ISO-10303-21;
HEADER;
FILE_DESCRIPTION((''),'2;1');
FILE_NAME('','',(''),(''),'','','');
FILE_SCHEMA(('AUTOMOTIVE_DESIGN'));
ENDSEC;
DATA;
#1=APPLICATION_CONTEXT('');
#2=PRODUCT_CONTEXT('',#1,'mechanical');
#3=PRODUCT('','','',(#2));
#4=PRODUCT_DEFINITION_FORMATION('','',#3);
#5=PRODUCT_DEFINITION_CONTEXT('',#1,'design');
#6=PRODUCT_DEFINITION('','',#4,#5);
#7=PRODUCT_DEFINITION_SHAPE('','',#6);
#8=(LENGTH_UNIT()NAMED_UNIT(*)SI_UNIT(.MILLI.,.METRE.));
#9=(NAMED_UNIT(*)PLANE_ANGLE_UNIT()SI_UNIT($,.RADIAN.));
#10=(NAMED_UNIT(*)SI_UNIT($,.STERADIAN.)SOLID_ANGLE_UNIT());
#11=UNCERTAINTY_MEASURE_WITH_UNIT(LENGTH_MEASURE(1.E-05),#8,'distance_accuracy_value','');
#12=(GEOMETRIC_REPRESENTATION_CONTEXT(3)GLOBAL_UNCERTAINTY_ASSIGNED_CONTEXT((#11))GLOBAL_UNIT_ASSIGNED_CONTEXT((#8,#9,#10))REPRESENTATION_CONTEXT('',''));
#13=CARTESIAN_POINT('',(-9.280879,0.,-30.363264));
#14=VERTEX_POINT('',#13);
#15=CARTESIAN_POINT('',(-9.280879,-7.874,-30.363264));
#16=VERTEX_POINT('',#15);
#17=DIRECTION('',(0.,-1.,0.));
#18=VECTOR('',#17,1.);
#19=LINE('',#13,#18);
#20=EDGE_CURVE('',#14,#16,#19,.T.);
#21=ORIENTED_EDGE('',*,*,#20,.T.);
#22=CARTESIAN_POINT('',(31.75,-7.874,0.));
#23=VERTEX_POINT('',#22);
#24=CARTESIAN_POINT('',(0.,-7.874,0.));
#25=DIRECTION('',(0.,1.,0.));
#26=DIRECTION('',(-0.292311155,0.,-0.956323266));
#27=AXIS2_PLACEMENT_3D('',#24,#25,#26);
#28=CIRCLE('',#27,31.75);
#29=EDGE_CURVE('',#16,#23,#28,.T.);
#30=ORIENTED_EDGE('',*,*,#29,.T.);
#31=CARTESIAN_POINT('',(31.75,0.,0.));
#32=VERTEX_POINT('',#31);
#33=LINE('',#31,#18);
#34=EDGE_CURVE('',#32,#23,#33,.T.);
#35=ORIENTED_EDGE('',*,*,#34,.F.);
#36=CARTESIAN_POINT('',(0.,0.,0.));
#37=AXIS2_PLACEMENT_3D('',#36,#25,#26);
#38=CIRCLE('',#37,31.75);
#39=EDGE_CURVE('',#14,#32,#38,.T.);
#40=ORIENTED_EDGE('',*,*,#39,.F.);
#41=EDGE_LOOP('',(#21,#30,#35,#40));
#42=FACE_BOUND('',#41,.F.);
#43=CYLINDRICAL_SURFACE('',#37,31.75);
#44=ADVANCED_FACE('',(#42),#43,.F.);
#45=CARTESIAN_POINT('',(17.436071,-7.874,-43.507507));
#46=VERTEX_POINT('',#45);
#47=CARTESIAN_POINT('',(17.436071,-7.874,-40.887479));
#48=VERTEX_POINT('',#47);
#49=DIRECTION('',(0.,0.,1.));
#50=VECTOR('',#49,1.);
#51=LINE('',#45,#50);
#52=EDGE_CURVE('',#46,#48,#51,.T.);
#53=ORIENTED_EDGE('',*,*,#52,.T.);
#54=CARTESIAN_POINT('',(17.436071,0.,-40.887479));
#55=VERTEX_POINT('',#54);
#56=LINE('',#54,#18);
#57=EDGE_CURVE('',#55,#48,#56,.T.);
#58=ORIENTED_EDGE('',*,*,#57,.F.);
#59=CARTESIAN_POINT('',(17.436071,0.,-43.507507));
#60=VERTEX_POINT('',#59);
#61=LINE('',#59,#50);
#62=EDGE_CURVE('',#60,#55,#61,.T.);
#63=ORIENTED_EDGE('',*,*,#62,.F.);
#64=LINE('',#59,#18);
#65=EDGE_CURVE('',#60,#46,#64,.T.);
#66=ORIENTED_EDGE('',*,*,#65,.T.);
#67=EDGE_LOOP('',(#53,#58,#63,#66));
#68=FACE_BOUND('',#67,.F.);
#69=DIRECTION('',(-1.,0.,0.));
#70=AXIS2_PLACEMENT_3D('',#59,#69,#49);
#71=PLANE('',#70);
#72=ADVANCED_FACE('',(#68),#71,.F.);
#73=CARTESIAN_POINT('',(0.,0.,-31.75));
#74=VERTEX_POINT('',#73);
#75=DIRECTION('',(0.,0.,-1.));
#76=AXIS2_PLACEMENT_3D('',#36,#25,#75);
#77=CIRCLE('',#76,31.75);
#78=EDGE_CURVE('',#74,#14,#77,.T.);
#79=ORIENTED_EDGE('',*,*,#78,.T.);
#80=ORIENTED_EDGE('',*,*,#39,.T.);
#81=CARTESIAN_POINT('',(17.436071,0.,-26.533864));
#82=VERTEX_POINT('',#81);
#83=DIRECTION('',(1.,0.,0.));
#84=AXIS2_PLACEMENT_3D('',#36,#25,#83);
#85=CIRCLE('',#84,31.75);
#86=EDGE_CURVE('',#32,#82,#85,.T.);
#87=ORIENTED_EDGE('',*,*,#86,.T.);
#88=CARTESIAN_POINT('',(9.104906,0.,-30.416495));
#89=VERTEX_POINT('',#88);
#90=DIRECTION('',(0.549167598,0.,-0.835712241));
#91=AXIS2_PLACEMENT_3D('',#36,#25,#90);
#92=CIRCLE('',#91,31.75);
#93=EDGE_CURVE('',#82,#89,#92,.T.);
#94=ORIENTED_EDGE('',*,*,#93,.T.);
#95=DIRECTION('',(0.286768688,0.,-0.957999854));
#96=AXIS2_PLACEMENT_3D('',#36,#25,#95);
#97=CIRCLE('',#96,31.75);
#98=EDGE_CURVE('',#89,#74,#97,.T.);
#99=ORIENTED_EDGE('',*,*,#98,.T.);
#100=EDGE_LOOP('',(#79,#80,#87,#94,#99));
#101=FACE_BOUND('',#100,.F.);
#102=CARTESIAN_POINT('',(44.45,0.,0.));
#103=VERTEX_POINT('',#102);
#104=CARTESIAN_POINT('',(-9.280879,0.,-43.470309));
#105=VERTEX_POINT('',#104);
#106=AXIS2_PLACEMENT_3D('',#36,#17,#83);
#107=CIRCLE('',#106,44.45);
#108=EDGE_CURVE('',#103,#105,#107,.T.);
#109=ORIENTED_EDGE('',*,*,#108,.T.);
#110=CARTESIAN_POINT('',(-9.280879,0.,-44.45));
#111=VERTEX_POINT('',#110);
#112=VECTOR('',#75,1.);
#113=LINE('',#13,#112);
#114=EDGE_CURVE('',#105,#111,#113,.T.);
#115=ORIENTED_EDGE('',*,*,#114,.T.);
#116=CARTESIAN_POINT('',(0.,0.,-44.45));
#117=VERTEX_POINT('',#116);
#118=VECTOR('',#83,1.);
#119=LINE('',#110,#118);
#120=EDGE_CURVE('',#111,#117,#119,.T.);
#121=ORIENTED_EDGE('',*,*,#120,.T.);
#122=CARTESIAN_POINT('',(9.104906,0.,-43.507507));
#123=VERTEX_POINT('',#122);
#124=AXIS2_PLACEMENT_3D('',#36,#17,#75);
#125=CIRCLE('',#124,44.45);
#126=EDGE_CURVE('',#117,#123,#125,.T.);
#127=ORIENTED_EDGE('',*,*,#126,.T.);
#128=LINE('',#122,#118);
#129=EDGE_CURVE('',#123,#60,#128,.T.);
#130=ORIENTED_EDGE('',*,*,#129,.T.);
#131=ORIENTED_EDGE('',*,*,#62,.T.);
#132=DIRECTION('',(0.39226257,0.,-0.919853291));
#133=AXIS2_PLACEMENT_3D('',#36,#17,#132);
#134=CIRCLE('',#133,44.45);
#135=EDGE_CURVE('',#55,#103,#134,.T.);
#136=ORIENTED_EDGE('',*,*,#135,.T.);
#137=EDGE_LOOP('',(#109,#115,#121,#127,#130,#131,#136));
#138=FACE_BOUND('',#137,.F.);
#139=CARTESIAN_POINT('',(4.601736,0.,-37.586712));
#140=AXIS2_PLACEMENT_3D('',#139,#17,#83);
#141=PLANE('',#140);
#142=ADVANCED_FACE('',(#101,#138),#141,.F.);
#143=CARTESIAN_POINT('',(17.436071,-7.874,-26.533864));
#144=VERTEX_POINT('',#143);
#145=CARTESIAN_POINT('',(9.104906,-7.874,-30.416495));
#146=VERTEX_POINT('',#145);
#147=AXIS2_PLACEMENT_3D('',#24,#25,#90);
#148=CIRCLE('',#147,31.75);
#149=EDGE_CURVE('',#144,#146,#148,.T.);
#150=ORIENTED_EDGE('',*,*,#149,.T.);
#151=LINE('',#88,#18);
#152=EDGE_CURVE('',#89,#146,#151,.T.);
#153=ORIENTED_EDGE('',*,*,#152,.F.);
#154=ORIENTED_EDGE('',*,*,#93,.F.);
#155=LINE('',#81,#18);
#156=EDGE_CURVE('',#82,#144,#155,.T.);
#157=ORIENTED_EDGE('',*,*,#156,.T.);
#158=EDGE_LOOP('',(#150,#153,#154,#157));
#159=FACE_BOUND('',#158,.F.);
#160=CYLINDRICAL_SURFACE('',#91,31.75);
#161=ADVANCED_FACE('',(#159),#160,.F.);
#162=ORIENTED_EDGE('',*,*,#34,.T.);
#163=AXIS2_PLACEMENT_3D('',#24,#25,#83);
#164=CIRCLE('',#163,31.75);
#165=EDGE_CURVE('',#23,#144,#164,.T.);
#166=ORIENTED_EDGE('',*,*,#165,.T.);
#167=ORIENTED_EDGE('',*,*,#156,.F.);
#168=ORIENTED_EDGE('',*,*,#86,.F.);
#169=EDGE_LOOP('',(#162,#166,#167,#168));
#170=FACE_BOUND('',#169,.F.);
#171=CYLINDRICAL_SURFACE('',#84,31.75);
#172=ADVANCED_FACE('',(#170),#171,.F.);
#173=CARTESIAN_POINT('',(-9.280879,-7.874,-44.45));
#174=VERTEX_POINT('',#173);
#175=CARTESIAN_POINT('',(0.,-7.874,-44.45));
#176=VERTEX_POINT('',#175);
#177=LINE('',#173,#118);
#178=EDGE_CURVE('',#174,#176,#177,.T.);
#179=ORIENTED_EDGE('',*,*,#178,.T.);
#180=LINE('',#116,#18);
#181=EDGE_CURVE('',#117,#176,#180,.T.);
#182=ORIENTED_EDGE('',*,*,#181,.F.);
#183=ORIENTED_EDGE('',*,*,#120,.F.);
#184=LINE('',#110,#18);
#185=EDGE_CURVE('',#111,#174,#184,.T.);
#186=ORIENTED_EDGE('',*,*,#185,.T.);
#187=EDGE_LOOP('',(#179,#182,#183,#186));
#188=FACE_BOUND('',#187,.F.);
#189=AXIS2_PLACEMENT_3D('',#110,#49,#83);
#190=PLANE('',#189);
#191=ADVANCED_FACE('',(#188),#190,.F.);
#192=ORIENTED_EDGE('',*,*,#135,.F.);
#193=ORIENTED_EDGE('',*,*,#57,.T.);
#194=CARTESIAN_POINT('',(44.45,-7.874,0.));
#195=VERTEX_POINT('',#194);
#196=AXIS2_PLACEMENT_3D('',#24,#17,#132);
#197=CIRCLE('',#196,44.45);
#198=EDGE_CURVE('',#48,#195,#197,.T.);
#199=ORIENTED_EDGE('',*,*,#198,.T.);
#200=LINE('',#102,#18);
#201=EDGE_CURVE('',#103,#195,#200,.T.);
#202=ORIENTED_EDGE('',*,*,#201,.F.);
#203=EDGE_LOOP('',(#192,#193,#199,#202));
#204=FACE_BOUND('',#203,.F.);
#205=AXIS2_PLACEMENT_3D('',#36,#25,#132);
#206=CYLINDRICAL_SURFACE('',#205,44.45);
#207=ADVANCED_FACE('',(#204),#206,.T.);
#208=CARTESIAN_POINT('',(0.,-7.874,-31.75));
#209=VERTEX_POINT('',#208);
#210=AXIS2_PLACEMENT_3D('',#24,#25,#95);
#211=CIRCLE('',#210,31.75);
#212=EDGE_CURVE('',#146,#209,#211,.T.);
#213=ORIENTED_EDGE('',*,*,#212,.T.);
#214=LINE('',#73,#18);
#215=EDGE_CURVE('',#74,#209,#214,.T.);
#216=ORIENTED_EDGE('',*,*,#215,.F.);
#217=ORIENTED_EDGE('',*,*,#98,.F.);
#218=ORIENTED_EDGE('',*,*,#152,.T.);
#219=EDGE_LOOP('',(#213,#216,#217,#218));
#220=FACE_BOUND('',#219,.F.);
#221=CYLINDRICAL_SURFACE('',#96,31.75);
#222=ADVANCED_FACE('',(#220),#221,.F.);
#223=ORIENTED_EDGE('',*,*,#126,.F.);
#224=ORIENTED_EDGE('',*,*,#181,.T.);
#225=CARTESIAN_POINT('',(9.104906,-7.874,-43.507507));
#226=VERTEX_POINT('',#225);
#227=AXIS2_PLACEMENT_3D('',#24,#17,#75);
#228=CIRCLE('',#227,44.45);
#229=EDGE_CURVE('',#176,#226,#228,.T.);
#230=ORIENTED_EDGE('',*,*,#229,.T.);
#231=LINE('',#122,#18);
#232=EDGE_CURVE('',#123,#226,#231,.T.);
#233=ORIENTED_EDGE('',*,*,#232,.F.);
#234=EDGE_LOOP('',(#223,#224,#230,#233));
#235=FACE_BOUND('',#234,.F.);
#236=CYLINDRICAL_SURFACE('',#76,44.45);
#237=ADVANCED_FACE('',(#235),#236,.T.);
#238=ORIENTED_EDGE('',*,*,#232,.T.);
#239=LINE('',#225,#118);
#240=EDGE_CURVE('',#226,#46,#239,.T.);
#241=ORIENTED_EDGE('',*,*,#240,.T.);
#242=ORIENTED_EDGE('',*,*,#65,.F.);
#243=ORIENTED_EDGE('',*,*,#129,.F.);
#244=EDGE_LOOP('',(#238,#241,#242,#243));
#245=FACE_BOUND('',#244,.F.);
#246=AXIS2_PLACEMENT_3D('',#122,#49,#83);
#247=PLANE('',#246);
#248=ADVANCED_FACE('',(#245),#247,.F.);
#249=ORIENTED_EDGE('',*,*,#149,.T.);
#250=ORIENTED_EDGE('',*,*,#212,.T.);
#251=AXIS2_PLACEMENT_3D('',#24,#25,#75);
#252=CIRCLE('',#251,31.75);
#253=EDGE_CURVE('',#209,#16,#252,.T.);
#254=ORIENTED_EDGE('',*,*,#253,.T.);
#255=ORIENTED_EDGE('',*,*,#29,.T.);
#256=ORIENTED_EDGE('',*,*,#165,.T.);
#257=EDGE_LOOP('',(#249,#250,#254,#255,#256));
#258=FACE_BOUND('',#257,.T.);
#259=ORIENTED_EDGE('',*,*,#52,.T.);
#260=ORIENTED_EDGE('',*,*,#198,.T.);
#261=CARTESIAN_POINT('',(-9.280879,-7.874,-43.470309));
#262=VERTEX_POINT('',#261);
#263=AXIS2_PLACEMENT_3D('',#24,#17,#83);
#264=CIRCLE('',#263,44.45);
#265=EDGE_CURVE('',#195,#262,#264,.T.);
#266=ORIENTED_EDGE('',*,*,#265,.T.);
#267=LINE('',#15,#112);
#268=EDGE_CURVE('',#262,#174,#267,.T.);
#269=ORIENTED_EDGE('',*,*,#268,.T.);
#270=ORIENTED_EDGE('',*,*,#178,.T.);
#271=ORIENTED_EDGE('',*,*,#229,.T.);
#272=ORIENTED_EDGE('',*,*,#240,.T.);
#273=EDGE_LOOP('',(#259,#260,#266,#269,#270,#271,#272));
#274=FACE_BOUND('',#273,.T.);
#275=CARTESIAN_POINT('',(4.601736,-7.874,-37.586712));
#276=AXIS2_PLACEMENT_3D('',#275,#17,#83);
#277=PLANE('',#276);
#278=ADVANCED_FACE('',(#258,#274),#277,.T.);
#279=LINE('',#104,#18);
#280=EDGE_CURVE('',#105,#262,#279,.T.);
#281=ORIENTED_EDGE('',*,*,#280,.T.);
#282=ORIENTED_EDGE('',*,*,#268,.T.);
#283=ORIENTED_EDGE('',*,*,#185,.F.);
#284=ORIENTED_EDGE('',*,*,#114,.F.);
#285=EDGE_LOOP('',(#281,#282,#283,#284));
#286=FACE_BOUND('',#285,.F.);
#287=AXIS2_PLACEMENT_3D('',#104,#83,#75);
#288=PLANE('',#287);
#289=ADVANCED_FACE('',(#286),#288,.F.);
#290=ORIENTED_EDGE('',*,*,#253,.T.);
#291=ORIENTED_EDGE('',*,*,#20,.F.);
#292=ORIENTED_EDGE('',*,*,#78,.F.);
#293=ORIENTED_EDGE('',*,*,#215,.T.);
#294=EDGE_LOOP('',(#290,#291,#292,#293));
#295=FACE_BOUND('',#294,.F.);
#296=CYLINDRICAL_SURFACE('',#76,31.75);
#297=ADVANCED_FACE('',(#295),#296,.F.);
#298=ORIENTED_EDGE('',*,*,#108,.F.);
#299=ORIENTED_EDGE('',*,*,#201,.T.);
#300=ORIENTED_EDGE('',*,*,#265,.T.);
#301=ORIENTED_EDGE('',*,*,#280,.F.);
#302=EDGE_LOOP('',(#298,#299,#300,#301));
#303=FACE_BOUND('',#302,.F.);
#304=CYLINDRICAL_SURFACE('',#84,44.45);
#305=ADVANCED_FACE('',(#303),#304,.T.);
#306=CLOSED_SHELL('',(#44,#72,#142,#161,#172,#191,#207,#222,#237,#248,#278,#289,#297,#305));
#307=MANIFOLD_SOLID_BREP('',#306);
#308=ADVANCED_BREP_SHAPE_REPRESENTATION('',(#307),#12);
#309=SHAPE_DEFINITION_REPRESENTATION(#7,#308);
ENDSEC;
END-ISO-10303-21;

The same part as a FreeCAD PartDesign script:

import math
import FreeCAD as App
import Part
import Sketcher
from FreeCAD import Vector
Q = App.Units.Quantity

doc = App.newDocument("Part")
body = doc.addObject("PartDesign::Body", "Body")

sketch1 = body.newObject("Sketcher::SketchObject", "Sketch")
sketch1.AttachmentSupport = (doc.getObject("XZ_Plane"), [""])
sketch1.MapMode = "FlatFace"
sketch1.addGeometry([
    Part.ArcOfCircle(Part.Circle(Vector(0, 0, 0), Vector(0, 0, 1), 44.4), math.radians(-90), math.radians(-78.18)),
    Part.LineSegment(Vector(9.1, -43.5, 0), Vector(17.4, -43.5, 0)),
    Part.LineSegment(Vector(17.4, -43.5, 0), Vector(17.4, -40.9, 0)),
    Part.ArcOfCircle(Part.Circle(Vector(0, 0, 0), Vector(0, 0, 1), 44.5), math.radians(-67), math.radians(0)),
    Part.ArcOfCircle(Part.Circle(Vector(0, 0, 0), Vector(0, 0, 1), 44.5), math.radians(0), math.radians(258)),
    Part.LineSegment(Vector(-9.3, -43.5, 0), Vector(-9.3, -44.5, 0)),
    Part.LineSegment(Vector(-9.3, -44.5, 0), Vector(0, -44.5, 0)),
    Part.ArcOfCircle(Part.Circle(Vector(0, 0, 0), Vector(0, 0, 1), 31.8), math.radians(-73.34), math.radians(-56.69)),
    Part.ArcOfCircle(Part.Circle(Vector(0, 0, 0), Vector(0, 0, 1), 31.7), math.radians(-90), math.radians(-73.34)),
    Part.ArcOfCircle(Part.Circle(Vector(0, 0, 0), Vector(0, 0, 1), 31.7), math.radians(-107), math.radians(-90)),
    Part.ArcOfCircle(Part.Circle(Vector(0, 0, 0), Vector(0, 0, 1), 31.8), math.radians(0), math.radians(253)),
    Part.ArcOfCircle(Part.Circle(Vector(0, 0, 0), Vector(0, 0, 1), 31.8), math.radians(-57), math.radians(0)),
], False)
sketch1.addConstraint([
    Sketcher.Constraint("Coincident", 0, 2, 1, 1),
    Sketcher.Constraint("Coincident", 1, 2, 2, 1),
    Sketcher.Constraint("Coincident", 2, 2, 3, 1),
    Sketcher.Constraint("Tangent", 3, 2, 4, 1),
    Sketcher.Constraint("Coincident", 4, 2, 5, 1),
    Sketcher.Constraint("Coincident", 5, 2, 6, 1),
    Sketcher.Constraint("Tangent", 6, 2, 0, 1),
    Sketcher.Constraint("Tangent", 7, 1, 8, 2),
    Sketcher.Constraint("Tangent", 8, 1, 9, 2),
    Sketcher.Constraint("Tangent", 9, 1, 10, 2),
    Sketcher.Constraint("Tangent", 10, 1, 11, 2),
    Sketcher.Constraint("Tangent", 11, 1, 7, 2),
    Sketcher.Constraint("Horizontal", 1),
    Sketcher.Constraint("Vertical", 2),
    Sketcher.Constraint("Vertical", 5),
    Sketcher.Constraint("Horizontal", 6),
    Sketcher.Constraint("Coincident", 0, 3, -1, 1),
    Sketcher.Constraint("Coincident", 3, 3, -1, 1),
    Sketcher.Constraint("Coincident", 7, 3, -1, 1),
    Sketcher.Constraint("Coincident", 9, 3, -1, 1),
    Sketcher.Constraint("Equal", 0, 3),
    Sketcher.Constraint("Equal", 3, 4),
    Sketcher.Constraint("PointOnObject", 3, 2, -1),
    Sketcher.Constraint("PointOnObject", 8, 1, -2),
    Sketcher.Constraint("PointOnObject", 10, 1, -1),
    Sketcher.Constraint("Vertical", 0, 2, 7, 1),
    Sketcher.Constraint("Vertical", 5, 2, 9, 1),
    Sketcher.Constraint("Vertical", 2, 2, 11, 1),
    Sketcher.Constraint("Radius", 0, Q("1.75 in")),
    Sketcher.Constraint("Radius", 7, Q("1.25 in")),
    Sketcher.Constraint("DistanceY", 7, 1, -1, 1, Q("1.1974998 in")),
    Sketcher.Constraint("DistanceX", 6, 1, 6, 2, Q("9.280879 mm")),
    Sketcher.Constraint("DistanceY", 2, 1, 2, 2, Q("2.620029 mm")),
])
pad1 = body.newObject("PartDesign::Pad", "Pad")
pad1.Profile = sketch1
pad1.Length = Q("0.31 in")

doc.recompute()
